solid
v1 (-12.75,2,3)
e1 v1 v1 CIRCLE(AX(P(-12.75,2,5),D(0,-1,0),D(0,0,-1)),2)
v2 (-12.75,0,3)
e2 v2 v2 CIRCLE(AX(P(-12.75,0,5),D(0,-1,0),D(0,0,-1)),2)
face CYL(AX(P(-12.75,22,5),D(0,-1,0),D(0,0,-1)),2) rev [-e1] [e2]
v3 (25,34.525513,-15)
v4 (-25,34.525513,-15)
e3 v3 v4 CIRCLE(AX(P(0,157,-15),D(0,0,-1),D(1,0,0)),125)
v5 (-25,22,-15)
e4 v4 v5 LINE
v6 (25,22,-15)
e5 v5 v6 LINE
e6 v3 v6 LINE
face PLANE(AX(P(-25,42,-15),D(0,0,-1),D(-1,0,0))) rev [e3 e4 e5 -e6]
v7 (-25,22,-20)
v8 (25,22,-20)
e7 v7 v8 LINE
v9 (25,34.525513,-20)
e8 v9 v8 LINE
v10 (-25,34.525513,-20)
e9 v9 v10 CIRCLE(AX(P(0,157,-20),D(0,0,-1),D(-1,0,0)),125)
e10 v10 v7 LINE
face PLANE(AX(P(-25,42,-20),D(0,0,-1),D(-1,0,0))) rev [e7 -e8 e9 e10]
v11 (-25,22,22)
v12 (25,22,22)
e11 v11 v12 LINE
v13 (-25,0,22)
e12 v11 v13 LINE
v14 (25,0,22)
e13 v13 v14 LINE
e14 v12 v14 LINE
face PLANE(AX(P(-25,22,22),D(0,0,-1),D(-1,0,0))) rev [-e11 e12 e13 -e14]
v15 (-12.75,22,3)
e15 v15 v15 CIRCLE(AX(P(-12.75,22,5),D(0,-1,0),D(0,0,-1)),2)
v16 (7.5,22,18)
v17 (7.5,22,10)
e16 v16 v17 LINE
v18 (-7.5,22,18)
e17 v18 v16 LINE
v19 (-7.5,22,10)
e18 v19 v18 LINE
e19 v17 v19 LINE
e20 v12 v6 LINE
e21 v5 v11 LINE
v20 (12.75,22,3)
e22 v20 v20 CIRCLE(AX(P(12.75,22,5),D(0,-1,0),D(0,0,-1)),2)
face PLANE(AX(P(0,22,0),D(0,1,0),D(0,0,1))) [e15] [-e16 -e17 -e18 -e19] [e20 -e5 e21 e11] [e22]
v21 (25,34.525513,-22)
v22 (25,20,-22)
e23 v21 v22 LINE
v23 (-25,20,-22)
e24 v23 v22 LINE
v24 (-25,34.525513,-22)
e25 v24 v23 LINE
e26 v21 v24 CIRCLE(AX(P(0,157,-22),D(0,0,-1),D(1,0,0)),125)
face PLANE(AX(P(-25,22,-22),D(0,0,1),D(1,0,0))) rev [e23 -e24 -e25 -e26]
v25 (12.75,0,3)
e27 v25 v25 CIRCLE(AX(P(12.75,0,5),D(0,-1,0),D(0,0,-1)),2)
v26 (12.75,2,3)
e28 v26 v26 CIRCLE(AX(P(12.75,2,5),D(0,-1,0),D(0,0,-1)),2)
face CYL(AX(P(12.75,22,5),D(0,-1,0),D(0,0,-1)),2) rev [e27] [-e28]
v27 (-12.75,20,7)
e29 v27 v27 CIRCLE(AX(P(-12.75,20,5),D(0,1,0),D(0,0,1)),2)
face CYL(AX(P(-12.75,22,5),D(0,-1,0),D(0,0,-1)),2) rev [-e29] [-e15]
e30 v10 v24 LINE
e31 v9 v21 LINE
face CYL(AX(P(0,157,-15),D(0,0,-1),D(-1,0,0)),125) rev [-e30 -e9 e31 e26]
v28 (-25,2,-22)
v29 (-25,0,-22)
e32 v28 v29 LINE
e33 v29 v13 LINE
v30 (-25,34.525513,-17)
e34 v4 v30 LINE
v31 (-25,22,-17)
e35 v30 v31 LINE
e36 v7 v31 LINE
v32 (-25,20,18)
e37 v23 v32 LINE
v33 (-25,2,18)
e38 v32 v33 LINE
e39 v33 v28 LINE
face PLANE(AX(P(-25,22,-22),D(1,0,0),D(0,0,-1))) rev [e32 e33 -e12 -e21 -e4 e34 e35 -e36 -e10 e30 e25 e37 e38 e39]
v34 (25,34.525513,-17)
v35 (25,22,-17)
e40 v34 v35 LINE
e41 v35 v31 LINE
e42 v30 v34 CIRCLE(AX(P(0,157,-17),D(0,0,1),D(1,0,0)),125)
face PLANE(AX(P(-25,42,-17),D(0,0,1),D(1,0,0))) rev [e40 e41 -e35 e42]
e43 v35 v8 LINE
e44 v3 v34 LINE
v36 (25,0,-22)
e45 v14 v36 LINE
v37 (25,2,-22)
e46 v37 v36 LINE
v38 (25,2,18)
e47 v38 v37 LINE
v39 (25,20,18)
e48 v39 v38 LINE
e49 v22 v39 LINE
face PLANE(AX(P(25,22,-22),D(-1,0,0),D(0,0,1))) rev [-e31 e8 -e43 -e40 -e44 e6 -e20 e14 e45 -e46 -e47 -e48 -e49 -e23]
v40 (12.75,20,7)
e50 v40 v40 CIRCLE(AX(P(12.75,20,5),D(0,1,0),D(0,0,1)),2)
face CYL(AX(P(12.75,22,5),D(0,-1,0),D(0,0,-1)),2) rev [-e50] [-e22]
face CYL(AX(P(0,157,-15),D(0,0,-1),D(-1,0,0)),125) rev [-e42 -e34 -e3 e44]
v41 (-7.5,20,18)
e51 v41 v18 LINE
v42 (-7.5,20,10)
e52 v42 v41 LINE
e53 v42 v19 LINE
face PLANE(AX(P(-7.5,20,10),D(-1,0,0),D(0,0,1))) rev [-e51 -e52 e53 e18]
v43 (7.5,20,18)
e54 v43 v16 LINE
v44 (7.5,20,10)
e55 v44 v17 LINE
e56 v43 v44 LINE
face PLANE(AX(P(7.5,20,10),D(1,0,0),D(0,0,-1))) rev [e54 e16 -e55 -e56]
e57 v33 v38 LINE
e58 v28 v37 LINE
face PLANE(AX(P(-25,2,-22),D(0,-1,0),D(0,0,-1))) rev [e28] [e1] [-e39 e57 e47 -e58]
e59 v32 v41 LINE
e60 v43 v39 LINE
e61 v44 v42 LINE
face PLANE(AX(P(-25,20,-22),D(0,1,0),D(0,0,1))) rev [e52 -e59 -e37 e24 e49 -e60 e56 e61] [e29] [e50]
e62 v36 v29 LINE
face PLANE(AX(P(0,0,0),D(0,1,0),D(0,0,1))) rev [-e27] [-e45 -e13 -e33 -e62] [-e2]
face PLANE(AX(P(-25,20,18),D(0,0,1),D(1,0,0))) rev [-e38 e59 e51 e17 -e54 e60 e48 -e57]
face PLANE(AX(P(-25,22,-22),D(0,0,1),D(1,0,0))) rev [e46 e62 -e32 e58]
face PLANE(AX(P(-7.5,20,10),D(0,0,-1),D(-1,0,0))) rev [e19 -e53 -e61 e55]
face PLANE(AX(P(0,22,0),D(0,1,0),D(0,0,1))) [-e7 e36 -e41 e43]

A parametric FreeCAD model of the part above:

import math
import FreeCAD as App
import Part
import Sketcher


def add_polygon(sketch, points):
    """Adds a closed chain of lines whose ends are joined by coincident constraints."""
    first, n = sketch.GeometryCount, len(points)
    for a, b in zip(points, points[1:] + points[:1]):
        sketch.addGeometry(Part.LineSegment(App.Vector(*a, 0), App.Vector(*b, 0)), False)
    for i in range(n):
        sketch.addConstraint(Sketcher.Constraint("Coincident", first + i, 2, first + (i + 1) % n, 1))

doc = App.newDocument("Part")
body = doc.addObject("PartDesign::Body", "Body")

# Sketch on XZ plane
sketch1 = doc.addObject("Sketcher::SketchObject", "Sketch")
body.addObject(sketch1)
sketch1.AttachmentSupport = (doc.XZ_Plane, [""])
sketch1.MapMode = "FlatFace"
add_polygon(sketch1, [(-25, -22), (-25, 22), (25, 22), (25, -22)])  # lines 0-3
sketch1.addConstraint([
    Sketcher.Constraint("Vertical", 0),
    Sketcher.Constraint("Horizontal", 1),
    Sketcher.Constraint("Vertical", 2),
    Sketcher.Constraint("Horizontal", 3),
    Sketcher.Constraint("Symmetric", 0, 2, 2, 2, -1, 1),
    Sketcher.Constraint("DistanceX", 1, 1, 1, 2, 50.0),
    Sketcher.Constraint("DistanceY", 0, 1, 0, 2, 44.0),
])
pad1 = doc.addObject("PartDesign::Pad", "Pad")
body.addObject(pad1)
pad1.Profile = sketch1
pad1.Length = 22
pad1.Reversed = True

# Sketch on XZ plane
sketch2 = doc.addObject("Sketcher::SketchObject", "Sketch001")
body.addObject(sketch2)
sketch2.AttachmentSupport = (doc.XZ_Plane, [""])
sketch2.MapMode = "FlatFace"
sketch2.AttachmentOffset = App.Placement(App.Vector(0, 0, -22), App.Rotation())
add_polygon(sketch2, [(-25, -22), (-25, -20), (25, -20), (25, -22)])  # lines 0-3
add_polygon(sketch2, [(-25, -17), (-25, -15), (25, -15), (25, -17)])  # lines 4-7
sketch2.addConstraint([
    Sketcher.Constraint("Vertical", 0),
    Sketcher.Constraint("Horizontal", 1),
    Sketcher.Constraint("Vertical", 2),
    Sketcher.Constraint("Horizontal", 3),
    Sketcher.Constraint("Vertical", 4),
    Sketcher.Constraint("Horizontal", 5),
    Sketcher.Constraint("Vertical", 6),
    Sketcher.Constraint("Horizontal", 7),
    Sketcher.Constraint("Vertical", 3, 2, 4, 2),
    Sketcher.Constraint("Vertical", 2, 2, 5, 2),
    Sketcher.Constraint("Equal", 2, 4),
    Sketcher.Constraint("DistanceX", 1, 1, 1, 2, 50.0),
    Sketcher.Constraint("DistanceY", 0, 1, 0, 2, 2.0),
    Sketcher.Constraint("DistanceX", 0, 2, -1, 1, 25.0),
    Sketcher.Constraint("DistanceY", 0, 2, -1, 1, 20.0),
    Sketcher.Constraint("DistanceY", 4, 2, -1, 1, 15.0),
])
pad2 = doc.addObject("PartDesign::Pad", "Pad001")
body.addObject(pad2)
pad2.Profile = sketch2
pad2.Length = 20
pad2.Reversed = True

# Sketch on YZ plane
sketch3 = doc.addObject("Sketcher::SketchObject", "Sketch002")
body.addObject(sketch3)
sketch3.AttachmentSupport = (doc.YZ_Plane, [""])
sketch3.MapMode = "FlatFace"
sketch3.AttachmentOffset = App.Placement(App.Vector(0, 0, 25), App.Rotation())
add_polygon(sketch3, [(20, 18), (2, 18), (2, -22), (20, -22)])  # lines 0-3
sketch3.addConstraint([
    Sketcher.Constraint("Horizontal", 0),
    Sketcher.Constraint("Vertical", 1),
    Sketcher.Constraint("Horizontal", 2),
    Sketcher.Constraint("Vertical", 3),
    Sketcher.Constraint("DistanceX", 0, 2, 0, 1, 18.0),
    Sketcher.Constraint("DistanceY", 1, 2, 1, 1, 40.0),
    Sketcher.Constraint("DistanceX", -1, 1, 0, 2, 2.0),
    Sketcher.Constraint("DistanceY", -1, 1, 0, 2, 18.0),
])
pocket1 = doc.addObject("PartDesign::Pocket", "Pocket")
body.addObject(pocket1)
pocket1.Profile = sketch3
pocket1.Length = 50

# Sketch on XZ plane
sketch4 = doc.addObject("Sketcher::SketchObject", "Sketch003")
body.addObject(sketch4)
sketch4.AttachmentSupport = (doc.XZ_Plane, [""])
sketch4.MapMode = "FlatFace"
sketch4.addGeometry([
    Part.Circle(App.Vector(12.75, 5, 0), App.Vector(0, 0, 1), 2),
    Part.Circle(App.Vector(-12.75, 5, 0), App.Vector(0, 0, 1), 2),
], False)
sketch4.addConstraint([
    Sketcher.Constraint("Equal", 0, 1),
    Sketcher.Constraint("Symmetric", 0, 3, 1, 3, -2),
    Sketcher.Constraint("Diameter", 0, 4.0),
    Sketcher.Constraint("DistanceY", -1, 1, 0, 3, 5.0),
    Sketcher.Constraint("DistanceX", 1, 3, 0, 3, 25.5),
])
pocket2 = doc.addObject("PartDesign::Pocket", "Pocket001")
body.addObject(pocket2)
pocket2.Profile = sketch4
pocket2.Length = 22

# Sketch on XZ plane
sketch5 = doc.addObject("Sketcher::SketchObject", "Sketch004")
body.addObject(sketch5)
sketch5.AttachmentSupport = (doc.XZ_Plane, [""])
sketch5.MapMode = "FlatFace"
sketch5.AttachmentOffset = App.Placement(App.Vector(0, 0, -22), App.Rotation())
add_polygon(sketch5, [(-7.5, 10), (-7.5, 18), (7.5, 18), (7.5, 10)])  # lines 0-3
sketch5.addConstraint([
    Sketcher.Constraint("Vertical", 0),
    Sketcher.Constraint("Horizontal", 1),
    Sketcher.Constraint("Vertical", 2),
    Sketcher.Constraint("Horizontal", 3),
    Sketcher.Constraint("DistanceX", 1, 1, 1, 2, 15.0),
    Sketcher.Constraint("DistanceY", 0, 1, 0, 2, 8.0),
    Sketcher.Constraint("DistanceY", -1, 1, 0, 2, 18.0),
    Sketcher.Constraint("DistanceX", 0, 2, -1, 1, 7.5),
])
pocket3 = doc.addObject("PartDesign::Pocket", "Pocket002")
body.addObject(pocket3)
pocket3.Profile = sketch5
pocket3.Length = 2
pocket3.Reversed = True

# Sketch on XY plane
sketch6 = doc.addObject("Sketcher::SketchObject", "Sketch005")
body.addObject(sketch6)
sketch6.AttachmentSupport = (doc.XY_Plane, [""])
sketch6.MapMode = "FlatFace"
sketch6.AttachmentOffset = App.Placement(App.Vector(0, 0, -22), App.Rotation())
sketch6.addGeometry([
    Part.LineSegment(App.Vector(-25, 34.525513, 0), App.Vector(-25, 42, 0)),
    Part.LineSegment(App.Vector(-25, 42, 0), App.Vector(25, 42, 0)),
    Part.LineSegment(App.Vector(25, 42, 0), App.Vector(25, 34.525513, 0)),
    Part.ArcOfCircle(Part.Circle(App.Vector(0, 157, 0), App.Vector(0, 0, 1), 125), math.radians(-101.536959), math.radians(-78.463041)),
], False)
sketch6.addConstraint([
    Sketcher.Constraint("Coincident", 0, 2, 1, 1),
    Sketcher.Constraint("Coincident", 1, 2, 2, 1),
    Sketcher.Constraint("Coincident", 2, 2, 3, 2),
    Sketcher.Constraint("Coincident", 3, 1, 0, 1),
    Sketcher.Constraint("Vertical", 0),
    Sketcher.Constraint("Horizontal", 1),
    Sketcher.Constraint("Vertical", 2),
    Sketcher.Constraint("Symmetric", 2, 2, 3, 1, -2),
    Sketcher.Constraint("Radius", 3, 125.0),
    Sketcher.Constraint("DistanceX", 1, 1, 1, 2, 50.0),
    Sketcher.Constraint("DistanceY", -1, 1, 3, 3, 157.0),
    Sketcher.Constraint("DistanceY", -1, 1, 0, 2, 42.0),
])
pocket4 = doc.addObject("PartDesign::Pocket", "Pocket003")
body.addObject(pocket4)
pocket4.Profile = sketch6
pocket4.Length = 7
pocket4.Reversed = True

doc.recompute()
